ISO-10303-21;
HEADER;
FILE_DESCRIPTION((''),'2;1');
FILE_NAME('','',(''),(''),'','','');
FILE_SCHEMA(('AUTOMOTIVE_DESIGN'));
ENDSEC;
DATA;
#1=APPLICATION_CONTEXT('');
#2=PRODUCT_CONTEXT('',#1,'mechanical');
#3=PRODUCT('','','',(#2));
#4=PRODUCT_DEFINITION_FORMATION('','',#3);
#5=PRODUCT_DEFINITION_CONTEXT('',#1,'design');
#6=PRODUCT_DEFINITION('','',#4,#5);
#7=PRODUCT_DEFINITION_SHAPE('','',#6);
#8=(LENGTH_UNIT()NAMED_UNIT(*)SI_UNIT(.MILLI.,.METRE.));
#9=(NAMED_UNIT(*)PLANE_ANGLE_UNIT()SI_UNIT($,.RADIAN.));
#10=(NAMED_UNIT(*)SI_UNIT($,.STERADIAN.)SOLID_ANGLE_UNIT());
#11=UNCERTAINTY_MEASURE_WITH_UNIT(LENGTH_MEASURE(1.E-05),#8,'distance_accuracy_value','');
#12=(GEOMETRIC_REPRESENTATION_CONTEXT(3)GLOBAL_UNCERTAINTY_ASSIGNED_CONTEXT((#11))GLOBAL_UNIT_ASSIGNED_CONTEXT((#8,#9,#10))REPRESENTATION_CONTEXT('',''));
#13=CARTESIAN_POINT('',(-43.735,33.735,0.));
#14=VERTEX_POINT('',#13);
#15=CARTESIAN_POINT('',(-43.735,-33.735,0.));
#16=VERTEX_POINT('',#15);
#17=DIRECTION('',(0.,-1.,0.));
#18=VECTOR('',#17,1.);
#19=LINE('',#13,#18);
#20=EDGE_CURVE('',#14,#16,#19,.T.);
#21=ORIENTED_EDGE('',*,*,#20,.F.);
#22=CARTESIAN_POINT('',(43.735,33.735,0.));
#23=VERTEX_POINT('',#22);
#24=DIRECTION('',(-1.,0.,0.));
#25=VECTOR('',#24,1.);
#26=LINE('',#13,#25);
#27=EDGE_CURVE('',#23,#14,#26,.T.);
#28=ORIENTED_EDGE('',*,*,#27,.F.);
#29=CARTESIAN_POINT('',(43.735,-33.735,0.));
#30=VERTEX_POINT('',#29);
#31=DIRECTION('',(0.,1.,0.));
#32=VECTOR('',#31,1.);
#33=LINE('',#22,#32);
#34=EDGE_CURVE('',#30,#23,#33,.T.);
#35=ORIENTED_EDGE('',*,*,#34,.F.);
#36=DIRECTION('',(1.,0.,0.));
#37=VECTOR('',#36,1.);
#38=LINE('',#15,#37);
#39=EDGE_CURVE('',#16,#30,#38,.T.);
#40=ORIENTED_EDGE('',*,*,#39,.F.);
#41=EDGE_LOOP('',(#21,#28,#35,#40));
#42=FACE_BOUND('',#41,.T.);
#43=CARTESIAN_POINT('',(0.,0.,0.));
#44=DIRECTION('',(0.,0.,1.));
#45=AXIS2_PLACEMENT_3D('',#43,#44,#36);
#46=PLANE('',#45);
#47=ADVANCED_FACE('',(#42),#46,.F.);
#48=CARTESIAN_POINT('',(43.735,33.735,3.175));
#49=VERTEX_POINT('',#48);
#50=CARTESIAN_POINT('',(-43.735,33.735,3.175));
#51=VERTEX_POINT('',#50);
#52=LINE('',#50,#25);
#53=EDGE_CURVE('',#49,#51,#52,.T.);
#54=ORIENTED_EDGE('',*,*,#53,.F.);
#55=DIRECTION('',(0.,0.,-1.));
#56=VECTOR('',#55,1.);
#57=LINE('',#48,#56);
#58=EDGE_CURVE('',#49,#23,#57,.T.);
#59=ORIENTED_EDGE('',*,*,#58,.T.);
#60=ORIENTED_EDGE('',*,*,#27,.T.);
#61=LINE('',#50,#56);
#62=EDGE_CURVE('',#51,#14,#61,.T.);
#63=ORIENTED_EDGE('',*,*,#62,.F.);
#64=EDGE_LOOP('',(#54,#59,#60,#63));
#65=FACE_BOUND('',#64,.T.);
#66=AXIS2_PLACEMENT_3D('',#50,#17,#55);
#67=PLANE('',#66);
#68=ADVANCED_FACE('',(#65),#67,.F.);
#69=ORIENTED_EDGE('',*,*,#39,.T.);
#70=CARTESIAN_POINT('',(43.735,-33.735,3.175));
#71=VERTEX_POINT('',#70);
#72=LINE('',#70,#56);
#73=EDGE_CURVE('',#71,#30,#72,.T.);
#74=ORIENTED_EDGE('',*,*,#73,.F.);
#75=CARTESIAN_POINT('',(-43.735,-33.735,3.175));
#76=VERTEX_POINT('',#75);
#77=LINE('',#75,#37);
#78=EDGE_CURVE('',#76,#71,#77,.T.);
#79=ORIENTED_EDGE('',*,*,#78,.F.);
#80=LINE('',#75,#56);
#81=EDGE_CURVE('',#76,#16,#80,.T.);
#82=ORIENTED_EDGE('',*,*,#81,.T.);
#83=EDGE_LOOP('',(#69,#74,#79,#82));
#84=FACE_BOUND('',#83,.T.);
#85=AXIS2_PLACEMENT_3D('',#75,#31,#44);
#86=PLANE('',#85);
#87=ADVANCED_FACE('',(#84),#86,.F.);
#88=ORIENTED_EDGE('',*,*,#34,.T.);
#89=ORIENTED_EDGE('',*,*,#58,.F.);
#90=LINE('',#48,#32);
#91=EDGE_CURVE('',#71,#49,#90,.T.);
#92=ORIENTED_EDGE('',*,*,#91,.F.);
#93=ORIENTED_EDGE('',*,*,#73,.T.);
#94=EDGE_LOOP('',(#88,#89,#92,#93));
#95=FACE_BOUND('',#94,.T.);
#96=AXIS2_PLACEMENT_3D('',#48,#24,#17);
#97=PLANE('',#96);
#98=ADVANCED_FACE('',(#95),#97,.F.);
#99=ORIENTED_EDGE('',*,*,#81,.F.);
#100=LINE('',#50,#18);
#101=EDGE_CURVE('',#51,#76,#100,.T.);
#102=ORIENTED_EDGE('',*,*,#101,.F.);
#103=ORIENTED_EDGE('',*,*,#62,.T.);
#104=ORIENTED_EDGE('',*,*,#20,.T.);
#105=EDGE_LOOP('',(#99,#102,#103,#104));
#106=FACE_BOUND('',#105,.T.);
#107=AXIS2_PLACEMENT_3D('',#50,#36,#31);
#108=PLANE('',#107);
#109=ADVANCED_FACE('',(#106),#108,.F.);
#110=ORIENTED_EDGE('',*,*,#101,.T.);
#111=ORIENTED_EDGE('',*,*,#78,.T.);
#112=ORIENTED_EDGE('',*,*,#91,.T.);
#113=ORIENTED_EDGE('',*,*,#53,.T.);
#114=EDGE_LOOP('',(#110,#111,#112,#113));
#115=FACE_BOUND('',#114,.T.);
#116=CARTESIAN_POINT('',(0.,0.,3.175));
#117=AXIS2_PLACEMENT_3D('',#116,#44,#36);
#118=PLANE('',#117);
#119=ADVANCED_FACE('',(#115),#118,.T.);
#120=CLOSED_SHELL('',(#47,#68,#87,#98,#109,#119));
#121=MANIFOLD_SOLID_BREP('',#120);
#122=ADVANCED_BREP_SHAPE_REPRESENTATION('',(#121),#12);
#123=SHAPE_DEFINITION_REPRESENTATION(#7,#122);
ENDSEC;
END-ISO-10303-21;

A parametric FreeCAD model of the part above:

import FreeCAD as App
import Part
import Sketcher
Q = App.Units.Quantity

doc = App.newDocument("Part")
body = doc.addObject("PartDesign::Body", "Body")

sketch1 = body.newObject("Sketcher::SketchObject", "Sketch")
sketch1.AttachmentSupport = (doc.getObject("XY_Plane"), [""])
sketch1.MapMode = "FlatFace"
sketch1.addGeometry([
    Part.LineSegment(App.Vector(-44, 34, 0), App.Vector(-44, -34, 0)),
    Part.LineSegment(App.Vector(-44, -34, 0), App.Vector(44, -34, 0)),
    Part.LineSegment(App.Vector(44, -34, 0), App.Vector(44, 34, 0)),
    Part.LineSegment(App.Vector(44, 34, 0), App.Vector(-44, 34, 0)),
], False)
sketch1.addConstraint([
    Sketcher.Constraint("Coincident", 0, 2, 1, 1),
    Sketcher.Constraint("Coincident", 1, 2, 2, 1),
    Sketcher.Constraint("Coincident", 2, 2, 3, 1),
    Sketcher.Constraint("Coincident", 3, 2, 0, 1),
    Sketcher.Constraint("Vertical", 0),
    Sketcher.Constraint("Horizontal", 1),
    Sketcher.Constraint("Vertical", 2),
    Sketcher.Constraint("Horizontal", 3),
    Sketcher.Constraint("Symmetric", 0, 2, 2, 2, -1, 1),
    Sketcher.Constraint("DistanceX", 1, 1, 1, 2, Q("87.47 mm")),
    Sketcher.Constraint("DistanceY", 0, 2, 0, 1, Q("67.47 mm")),
])
pad1 = body.newObject("PartDesign::Pad", "Pad")
pad1.Profile = sketch1
pad1.Length = Q("0.125 in")

doc.recompute()
